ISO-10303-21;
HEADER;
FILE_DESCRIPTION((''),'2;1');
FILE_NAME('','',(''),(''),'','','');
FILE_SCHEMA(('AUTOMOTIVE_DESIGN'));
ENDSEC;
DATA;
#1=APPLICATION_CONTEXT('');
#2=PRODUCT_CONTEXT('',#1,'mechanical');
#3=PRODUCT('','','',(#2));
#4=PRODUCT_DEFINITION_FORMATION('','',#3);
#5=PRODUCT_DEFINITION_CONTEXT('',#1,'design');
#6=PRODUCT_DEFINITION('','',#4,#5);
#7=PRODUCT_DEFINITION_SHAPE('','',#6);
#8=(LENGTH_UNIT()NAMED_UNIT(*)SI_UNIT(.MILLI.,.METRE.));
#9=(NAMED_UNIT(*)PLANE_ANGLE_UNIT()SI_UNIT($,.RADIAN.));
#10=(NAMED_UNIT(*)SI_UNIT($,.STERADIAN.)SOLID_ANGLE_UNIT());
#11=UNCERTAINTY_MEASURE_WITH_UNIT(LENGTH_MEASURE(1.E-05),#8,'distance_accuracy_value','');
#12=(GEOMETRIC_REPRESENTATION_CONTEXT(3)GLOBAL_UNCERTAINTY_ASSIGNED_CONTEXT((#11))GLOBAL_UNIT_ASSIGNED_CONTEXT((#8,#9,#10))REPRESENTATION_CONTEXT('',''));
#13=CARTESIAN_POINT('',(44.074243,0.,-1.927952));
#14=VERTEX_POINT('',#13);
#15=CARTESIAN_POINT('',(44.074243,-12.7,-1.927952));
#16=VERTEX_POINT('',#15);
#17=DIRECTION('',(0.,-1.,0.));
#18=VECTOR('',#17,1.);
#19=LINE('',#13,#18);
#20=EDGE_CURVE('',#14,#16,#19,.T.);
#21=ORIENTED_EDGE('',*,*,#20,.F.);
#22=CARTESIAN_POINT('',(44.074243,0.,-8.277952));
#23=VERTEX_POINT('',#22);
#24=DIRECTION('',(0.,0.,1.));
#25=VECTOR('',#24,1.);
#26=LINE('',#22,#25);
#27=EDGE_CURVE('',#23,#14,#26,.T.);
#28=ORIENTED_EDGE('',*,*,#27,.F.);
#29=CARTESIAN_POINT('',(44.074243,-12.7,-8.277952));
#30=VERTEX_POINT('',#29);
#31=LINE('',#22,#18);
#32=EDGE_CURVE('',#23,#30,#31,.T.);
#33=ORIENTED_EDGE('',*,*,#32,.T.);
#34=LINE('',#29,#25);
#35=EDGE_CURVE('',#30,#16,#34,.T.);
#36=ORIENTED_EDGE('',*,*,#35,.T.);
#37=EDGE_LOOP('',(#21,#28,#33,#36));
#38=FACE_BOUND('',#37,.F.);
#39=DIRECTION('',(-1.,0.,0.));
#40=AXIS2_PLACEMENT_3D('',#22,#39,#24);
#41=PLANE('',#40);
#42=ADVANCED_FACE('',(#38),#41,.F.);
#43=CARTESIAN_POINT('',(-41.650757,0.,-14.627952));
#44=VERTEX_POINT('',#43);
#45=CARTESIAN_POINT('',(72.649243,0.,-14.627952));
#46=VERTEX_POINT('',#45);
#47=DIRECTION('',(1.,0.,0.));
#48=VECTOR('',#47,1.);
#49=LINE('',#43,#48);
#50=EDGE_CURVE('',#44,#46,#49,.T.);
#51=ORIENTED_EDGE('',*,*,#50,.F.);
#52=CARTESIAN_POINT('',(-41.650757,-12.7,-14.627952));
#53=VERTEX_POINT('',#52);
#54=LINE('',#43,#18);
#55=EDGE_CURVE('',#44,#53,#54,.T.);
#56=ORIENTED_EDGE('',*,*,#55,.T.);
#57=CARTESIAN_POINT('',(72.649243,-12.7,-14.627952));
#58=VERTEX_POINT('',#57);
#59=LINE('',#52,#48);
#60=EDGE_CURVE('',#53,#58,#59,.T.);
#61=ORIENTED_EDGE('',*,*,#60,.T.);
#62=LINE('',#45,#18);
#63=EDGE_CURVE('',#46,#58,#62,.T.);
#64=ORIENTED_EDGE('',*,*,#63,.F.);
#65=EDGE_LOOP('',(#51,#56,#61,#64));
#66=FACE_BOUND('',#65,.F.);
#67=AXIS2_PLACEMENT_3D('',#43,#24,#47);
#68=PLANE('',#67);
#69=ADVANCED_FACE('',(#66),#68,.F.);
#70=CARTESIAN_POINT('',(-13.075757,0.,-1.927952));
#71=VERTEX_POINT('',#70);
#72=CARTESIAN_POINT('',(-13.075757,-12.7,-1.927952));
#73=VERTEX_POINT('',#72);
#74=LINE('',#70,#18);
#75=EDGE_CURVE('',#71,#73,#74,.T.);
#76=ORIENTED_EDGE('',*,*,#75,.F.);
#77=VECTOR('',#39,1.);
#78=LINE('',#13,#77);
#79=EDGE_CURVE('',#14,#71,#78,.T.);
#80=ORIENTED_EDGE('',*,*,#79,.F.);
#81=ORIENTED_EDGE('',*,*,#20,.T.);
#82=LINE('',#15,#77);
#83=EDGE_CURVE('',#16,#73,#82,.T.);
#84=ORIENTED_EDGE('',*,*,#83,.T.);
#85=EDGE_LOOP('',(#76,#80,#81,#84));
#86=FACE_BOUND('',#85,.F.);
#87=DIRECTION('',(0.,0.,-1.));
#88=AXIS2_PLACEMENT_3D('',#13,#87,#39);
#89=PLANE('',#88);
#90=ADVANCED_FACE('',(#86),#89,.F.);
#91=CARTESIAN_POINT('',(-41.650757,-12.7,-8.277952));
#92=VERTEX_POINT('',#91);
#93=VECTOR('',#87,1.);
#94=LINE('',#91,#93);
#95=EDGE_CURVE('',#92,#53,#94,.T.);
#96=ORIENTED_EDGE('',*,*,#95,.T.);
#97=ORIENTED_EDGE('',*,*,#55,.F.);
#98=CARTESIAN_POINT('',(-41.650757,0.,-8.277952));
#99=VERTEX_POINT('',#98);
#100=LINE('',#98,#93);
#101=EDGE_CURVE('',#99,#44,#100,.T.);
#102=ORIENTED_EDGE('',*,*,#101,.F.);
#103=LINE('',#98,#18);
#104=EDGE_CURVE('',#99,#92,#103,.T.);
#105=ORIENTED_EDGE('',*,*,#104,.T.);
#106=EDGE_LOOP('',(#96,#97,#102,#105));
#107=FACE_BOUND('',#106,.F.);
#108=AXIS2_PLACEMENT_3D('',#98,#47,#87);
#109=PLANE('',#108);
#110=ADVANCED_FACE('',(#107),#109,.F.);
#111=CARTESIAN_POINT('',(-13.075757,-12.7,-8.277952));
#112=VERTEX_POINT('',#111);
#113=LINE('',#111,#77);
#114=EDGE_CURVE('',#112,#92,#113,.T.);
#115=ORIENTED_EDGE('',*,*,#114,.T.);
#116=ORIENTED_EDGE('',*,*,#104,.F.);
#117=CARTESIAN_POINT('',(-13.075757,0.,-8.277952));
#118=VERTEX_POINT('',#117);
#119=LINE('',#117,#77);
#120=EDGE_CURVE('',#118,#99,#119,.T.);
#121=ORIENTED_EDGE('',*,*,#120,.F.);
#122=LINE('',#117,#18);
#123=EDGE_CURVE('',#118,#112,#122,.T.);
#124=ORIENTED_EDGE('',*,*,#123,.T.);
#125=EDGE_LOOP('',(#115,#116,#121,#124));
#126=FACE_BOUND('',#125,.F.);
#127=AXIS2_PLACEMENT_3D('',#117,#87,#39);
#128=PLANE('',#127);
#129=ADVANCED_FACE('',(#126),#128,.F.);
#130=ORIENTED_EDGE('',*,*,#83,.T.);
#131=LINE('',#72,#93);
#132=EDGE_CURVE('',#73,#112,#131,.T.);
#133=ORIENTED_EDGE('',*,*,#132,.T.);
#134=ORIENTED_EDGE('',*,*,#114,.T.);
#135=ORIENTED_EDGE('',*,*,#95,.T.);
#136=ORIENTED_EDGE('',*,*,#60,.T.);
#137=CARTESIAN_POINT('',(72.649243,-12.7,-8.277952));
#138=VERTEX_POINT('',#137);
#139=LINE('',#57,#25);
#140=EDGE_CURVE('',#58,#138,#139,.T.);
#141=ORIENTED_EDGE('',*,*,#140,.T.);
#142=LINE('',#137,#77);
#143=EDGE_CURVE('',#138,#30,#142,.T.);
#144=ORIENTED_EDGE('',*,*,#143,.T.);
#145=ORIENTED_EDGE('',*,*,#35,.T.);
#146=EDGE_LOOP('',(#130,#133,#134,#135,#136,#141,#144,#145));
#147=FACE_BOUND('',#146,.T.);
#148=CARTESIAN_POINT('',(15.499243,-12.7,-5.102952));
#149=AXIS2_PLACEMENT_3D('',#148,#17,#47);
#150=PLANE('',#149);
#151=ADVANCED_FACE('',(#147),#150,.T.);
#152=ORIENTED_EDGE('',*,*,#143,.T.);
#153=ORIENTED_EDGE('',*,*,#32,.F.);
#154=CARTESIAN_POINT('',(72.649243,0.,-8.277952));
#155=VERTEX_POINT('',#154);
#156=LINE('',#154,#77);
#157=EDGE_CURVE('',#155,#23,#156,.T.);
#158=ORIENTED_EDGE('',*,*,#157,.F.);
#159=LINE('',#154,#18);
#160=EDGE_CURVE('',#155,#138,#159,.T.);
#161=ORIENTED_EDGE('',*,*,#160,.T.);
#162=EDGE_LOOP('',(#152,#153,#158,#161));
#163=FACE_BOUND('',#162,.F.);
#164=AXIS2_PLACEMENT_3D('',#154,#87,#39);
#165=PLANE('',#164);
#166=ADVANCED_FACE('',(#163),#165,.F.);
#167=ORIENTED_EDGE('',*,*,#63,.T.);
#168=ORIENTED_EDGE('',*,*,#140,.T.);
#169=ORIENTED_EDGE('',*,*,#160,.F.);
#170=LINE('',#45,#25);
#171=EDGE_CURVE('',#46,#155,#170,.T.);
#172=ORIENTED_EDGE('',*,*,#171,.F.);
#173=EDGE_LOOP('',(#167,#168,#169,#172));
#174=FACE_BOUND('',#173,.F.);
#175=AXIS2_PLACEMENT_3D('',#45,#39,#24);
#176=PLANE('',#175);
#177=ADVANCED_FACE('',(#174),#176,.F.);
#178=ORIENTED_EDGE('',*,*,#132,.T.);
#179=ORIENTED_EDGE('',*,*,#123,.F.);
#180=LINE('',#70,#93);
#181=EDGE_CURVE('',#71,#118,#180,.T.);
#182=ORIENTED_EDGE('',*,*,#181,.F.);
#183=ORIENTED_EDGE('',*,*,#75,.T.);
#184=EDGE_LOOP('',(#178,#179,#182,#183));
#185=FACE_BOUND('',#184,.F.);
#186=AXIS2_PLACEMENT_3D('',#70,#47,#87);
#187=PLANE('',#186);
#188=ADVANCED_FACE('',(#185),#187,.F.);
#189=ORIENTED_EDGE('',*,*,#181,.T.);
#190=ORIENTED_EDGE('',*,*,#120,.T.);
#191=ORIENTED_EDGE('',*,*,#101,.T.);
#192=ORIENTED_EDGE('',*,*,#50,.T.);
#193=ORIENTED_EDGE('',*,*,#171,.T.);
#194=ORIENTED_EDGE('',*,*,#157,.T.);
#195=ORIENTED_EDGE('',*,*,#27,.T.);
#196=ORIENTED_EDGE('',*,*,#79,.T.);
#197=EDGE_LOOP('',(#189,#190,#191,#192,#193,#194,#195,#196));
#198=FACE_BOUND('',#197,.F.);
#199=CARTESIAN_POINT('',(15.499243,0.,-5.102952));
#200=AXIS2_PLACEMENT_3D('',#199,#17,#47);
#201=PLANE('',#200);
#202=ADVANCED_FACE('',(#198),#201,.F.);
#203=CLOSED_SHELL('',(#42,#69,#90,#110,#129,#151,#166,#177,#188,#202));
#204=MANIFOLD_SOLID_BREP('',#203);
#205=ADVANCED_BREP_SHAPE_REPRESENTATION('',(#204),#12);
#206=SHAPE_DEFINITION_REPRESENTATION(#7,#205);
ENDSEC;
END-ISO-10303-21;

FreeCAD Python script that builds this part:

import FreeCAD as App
import Part
import Sketcher
Q = App.Units.Quantity

doc = App.newDocument("Part")
body = doc.addObject("PartDesign::Body", "Body")

# Sketch on XZ plane
sketch1 = body.newObject("Sketcher::SketchObject", "Sketch")
sketch1.AttachmentSupport = (doc.getObject("XZ_Plane"), [""])
sketch1.MapMode = "FlatFace"
sketch1.addGeometry([
    Part.LineSegment(App.Vector(44, -2, 0), App.Vector(-13, -2, 0)),  # 0
    Part.LineSegment(App.Vector(-13, -2, 0), App.Vector(-13, -8, 0)),  # 1
    Part.LineSegment(App.Vector(-13, -8, 0), App.Vector(-42, -8, 0)),  # 2
    Part.LineSegment(App.Vector(-42, -8, 0), App.Vector(-42, -15, 0)),  # 3
    Part.LineSegment(App.Vector(-42, -15, 0), App.Vector(73, -15, 0)),  # 4
    Part.LineSegment(App.Vector(73, -15, 0), App.Vector(73, -8, 0)),  # 5
    Part.LineSegment(App.Vector(73, -8, 0), App.Vector(44, -8, 0)),  # 6
    Part.LineSegment(App.Vector(44, -8, 0), App.Vector(44, -2, 0)),  # 7
], False)
sketch1.addConstraint([
    Sketcher.Constraint("Coincident", 0, 2, 1, 1),
    Sketcher.Constraint("Coincident", 1, 2, 2, 1),
    Sketcher.Constraint("Coincident", 2, 2, 3, 1),
    Sketcher.Constraint("Coincident", 3, 2, 4, 1),
    Sketcher.Constraint("Coincident", 4, 2, 5, 1),
    Sketcher.Constraint("Coincident", 5, 2, 6, 1),
    Sketcher.Constraint("Coincident", 6, 2, 7, 1),
    Sketcher.Constraint("Coincident", 7, 2, 0, 1),
    Sketcher.Constraint("Horizontal", 0),
    Sketcher.Constraint("Vertical", 1),
    Sketcher.Constraint("Horizontal", 2),
    Sketcher.Constraint("Vertical", 3),
    Sketcher.Constraint("Horizontal", 4),
    Sketcher.Constraint("Vertical", 5),
    Sketcher.Constraint("Horizontal", 6),
    Sketcher.Constraint("Vertical", 7),
    Sketcher.Constraint("Horizontal", 2, 2, 5, 2),
    Sketcher.Constraint("Equal", 2, 6),
    Sketcher.Constraint("Equal", 1, 3),
    Sketcher.Constraint("DistanceX", 4, 1, 4, 2, Q("4.5 in")),
    Sketcher.Constraint("DistanceX", 0, 2, 0, 1, Q("2.25 in")),
    Sketcher.Constraint("DistanceY", 1, 2, 1, 1, Q("0.25 in")),
    Sketcher.Constraint("DistanceX", 0, 2, -1, 1, Q("13.075757 mm")),
    Sketcher.Constraint("DistanceY", 0, 2, -1, 1, Q("1.927952 mm")),
])
pad1 = body.newObject("PartDesign::Pad", "Pad")
pad1.Profile = sketch1
pad1.Length = Q("0.5 in")

doc.recompute()
